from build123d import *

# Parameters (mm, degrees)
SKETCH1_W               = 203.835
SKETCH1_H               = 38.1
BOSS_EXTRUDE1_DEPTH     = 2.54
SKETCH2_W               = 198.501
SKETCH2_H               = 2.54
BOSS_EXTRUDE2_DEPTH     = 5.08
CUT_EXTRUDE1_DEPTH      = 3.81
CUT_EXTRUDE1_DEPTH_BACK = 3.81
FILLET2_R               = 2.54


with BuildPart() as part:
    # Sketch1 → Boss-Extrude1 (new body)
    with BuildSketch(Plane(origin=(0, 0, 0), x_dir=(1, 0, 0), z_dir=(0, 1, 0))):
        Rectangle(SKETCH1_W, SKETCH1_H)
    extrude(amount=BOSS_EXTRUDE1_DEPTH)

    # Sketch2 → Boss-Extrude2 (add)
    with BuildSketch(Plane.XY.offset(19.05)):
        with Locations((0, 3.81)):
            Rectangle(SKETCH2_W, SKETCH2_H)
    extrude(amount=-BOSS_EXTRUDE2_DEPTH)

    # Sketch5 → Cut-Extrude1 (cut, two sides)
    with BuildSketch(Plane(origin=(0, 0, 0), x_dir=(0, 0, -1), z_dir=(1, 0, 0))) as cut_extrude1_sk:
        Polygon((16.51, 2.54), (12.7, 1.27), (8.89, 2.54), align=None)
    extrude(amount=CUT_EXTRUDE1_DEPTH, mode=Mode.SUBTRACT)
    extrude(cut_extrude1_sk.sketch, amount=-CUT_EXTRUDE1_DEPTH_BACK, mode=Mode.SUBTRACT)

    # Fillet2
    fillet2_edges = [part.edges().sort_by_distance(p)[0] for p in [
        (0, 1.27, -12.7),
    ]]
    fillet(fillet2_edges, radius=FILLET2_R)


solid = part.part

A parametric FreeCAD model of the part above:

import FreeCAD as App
import Part
import Sketcher
Q = App.Units.Quantity


def edges_at(feature, points):
    """Names of the edges that pass closest to the given points."""
    edges = feature.Shape.Edges
    near = lambda p: min(range(len(edges)), key=lambda i: edges[i].distToShape(Part.Vertex(*p))[0])
    return sorted({f"Edge{near(p) + 1}" for p in points})

doc = App.newDocument("Part")
body = doc.addObject("PartDesign::Body", "Body")

sketch1 = body.newObject("Sketcher::SketchObject", "Sketch")
sketch1.AttachmentSupport = (doc.getObject("XZ_Plane"), [""])
sketch1.MapMode = "FlatFace"
sketch1.addGeometry(Part.LineSegment(App.Vector(-102, -19, 0), App.Vector(-102, 19, 0)), False)
sketch1.addGeometry(Part.LineSegment(App.Vector(-102, 19, 0), App.Vector(102, 19, 0)), False)
sketch1.addGeometry(Part.LineSegment(App.Vector(102, 19, 0), App.Vector(102, -19, 0)), False)
sketch1.addGeometry(Part.LineSegment(App.Vector(102, -19, 0), App.Vector(-102, -19, 0)), False)
sketch1.addConstraint(Sketcher.Constraint("Coincident", 0, 2, 1, 1))
sketch1.addConstraint(Sketcher.Constraint("Coincident", 1, 2, 2, 1))
sketch1.addConstraint(Sketcher.Constraint("Coincident", 2, 2, 3, 1))
sketch1.addConstraint(Sketcher.Constraint("Coincident", 3, 2, 0, 1))
sketch1.addConstraint(Sketcher.Constraint("Vertical", 0))
sketch1.addConstraint(Sketcher.Constraint("Horizontal", 1))
sketch1.addConstraint(Sketcher.Constraint("Vertical", 2))
sketch1.addConstraint(Sketcher.Constraint("Horizontal", 3))
sketch1.addConstraint(Sketcher.Constraint("Symmetric", 0, 2, 2, 2, -1, 1))
sketch1.addConstraint(Sketcher.Constraint("DistanceY", 0, 1, 0, 2, Q("1.5 in")))
sketch1.addConstraint(Sketcher.Constraint("DistanceX", 1, 1, 1, 2, Q("8.025 in")))
pad1 = body.newObject("PartDesign::Pad", "Pad")
pad1.Profile = sketch1
pad1.Length = Q("0.1 in")
pad1.Reversed = True

sketch2 = body.newObject("Sketcher::SketchObject", "Sketch001")
sketch2.AttachmentSupport = (doc.getObject("XY_Plane"), [""])
sketch2.MapMode = "FlatFace"
sketch2.AttachmentOffset = App.Placement(App.Vector(0, 0, 0.75 * 25.4), App.Rotation())
sketch2.addGeometry(Part.LineSegment(App.Vector(-99.3, 5.1, 0), App.Vector(-99.3, 2.5, 0)), False)
sketch2.addGeometry(Part.LineSegment(App.Vector(-99.3, 2.5, 0), App.Vector(99.3, 2.5, 0)), False)
sketch2.addGeometry(Part.LineSegment(App.Vector(99.3, 2.5, 0), App.Vector(99.3, 5.1, 0)), False)
sketch2.addGeometry(Part.LineSegment(App.Vector(99.3, 5.1, 0), App.Vector(-99.3, 5.1, 0)), False)
sketch2.addConstraint(Sketcher.Constraint("Coincident", 0, 2, 1, 1))
sketch2.addConstraint(Sketcher.Constraint("Coincident", 1, 2, 2, 1))
sketch2.addConstraint(Sketcher.Constraint("Coincident", 2, 2, 3, 1))
sketch2.addConstraint(Sketcher.Constraint("Coincident", 3, 2, 0, 1))
sketch2.addConstraint(Sketcher.Constraint("Vertical", 0))
sketch2.addConstraint(Sketcher.Constraint("Horizontal", 1))
sketch2.addConstraint(Sketcher.Constraint("Vertical", 2))
sketch2.addConstraint(Sketcher.Constraint("Horizontal", 3))
sketch2.addConstraint(Sketcher.Constraint("DistanceY", 0, 2, 0, 1, Q("0.1 in")))
sketch2.addConstraint(Sketcher.Constraint("DistanceY", -1, 1, 0, 2, Q("0.1 in")))
sketch2.addConstraint(Sketcher.Constraint("DistanceX", 1, 1, 1, 2, Q("7.815 in")))
sketch2.addConstraint(Sketcher.Constraint("DistanceX", 0, 2, -1, 1, Q("3.9075 in")))
pad2 = body.newObject("PartDesign::Pad", "Pad001")
pad2.Profile = sketch2
pad2.Length = Q("0.2 in")
pad2.Reversed = True

sketch3 = body.newObject("Sketcher::SketchObject", "Sketch002")
sketch3.AttachmentSupport = (doc.getObject("YZ_Plane"), [""])
sketch3.MapMode = "FlatFace"
sketch3.addGeometry(Part.LineSegment(App.Vector(1.3, -12.7, 0), App.Vector(2.5, -16.5, 0)), False)
sketch3.addGeometry(Part.LineSegment(App.Vector(2.5, -16.5, 0), App.Vector(2.5, -8.9, 0)), False)
sketch3.addGeometry(Part.LineSegment(App.Vector(2.5, -8.9, 0), App.Vector(1.3, -12.7, 0)), False)
sketch3.addConstraint(Sketcher.Constraint("Coincident", 0, 2, 1, 1))
sketch3.addConstraint(Sketcher.Constraint("Coincident", 1, 2, 2, 1))
sketch3.addConstraint(Sketcher.Constraint("Coincident", 2, 2, 0, 1))
sketch3.addConstraint(Sketcher.Constraint("Vertical", 1))
sketch3.addConstraint(Sketcher.Constraint("Equal", 0, 2))
sketch3.addConstraint(Sketcher.Constraint("DistanceY", 1, 1, 1, 2, Q("0.3 in")))
sketch3.addConstraint(Sketcher.Constraint("DistanceX", -1, 1, 0, 2, Q("0.1 in")))
sketch3.addConstraint(Sketcher.Constraint("DistanceY", 2, 2, -1, 1, Q("0.5 in")))
sketch3.addConstraint(Sketcher.Constraint("DistanceX", -1, 1, 2, 2, Q("0.05 in")))
pocket1 = body.newObject("PartDesign::Pocket", "Pocket")
pocket1.Profile = sketch3
pocket1.Type = "TwoLengths"
pocket1.Length = Q("0.15 in")
pocket1.Length2 = Q("0.15 in")
pocket1.Reversed = True
doc.recompute()

fillet = body.newObject("PartDesign::Fillet", "Fillet")
fillet.Base = (pocket1, edges_at(pocket1, [(0, 1.27, -12.7)]))
fillet.Radius = Q("0.1 in")

doc.recompute()
